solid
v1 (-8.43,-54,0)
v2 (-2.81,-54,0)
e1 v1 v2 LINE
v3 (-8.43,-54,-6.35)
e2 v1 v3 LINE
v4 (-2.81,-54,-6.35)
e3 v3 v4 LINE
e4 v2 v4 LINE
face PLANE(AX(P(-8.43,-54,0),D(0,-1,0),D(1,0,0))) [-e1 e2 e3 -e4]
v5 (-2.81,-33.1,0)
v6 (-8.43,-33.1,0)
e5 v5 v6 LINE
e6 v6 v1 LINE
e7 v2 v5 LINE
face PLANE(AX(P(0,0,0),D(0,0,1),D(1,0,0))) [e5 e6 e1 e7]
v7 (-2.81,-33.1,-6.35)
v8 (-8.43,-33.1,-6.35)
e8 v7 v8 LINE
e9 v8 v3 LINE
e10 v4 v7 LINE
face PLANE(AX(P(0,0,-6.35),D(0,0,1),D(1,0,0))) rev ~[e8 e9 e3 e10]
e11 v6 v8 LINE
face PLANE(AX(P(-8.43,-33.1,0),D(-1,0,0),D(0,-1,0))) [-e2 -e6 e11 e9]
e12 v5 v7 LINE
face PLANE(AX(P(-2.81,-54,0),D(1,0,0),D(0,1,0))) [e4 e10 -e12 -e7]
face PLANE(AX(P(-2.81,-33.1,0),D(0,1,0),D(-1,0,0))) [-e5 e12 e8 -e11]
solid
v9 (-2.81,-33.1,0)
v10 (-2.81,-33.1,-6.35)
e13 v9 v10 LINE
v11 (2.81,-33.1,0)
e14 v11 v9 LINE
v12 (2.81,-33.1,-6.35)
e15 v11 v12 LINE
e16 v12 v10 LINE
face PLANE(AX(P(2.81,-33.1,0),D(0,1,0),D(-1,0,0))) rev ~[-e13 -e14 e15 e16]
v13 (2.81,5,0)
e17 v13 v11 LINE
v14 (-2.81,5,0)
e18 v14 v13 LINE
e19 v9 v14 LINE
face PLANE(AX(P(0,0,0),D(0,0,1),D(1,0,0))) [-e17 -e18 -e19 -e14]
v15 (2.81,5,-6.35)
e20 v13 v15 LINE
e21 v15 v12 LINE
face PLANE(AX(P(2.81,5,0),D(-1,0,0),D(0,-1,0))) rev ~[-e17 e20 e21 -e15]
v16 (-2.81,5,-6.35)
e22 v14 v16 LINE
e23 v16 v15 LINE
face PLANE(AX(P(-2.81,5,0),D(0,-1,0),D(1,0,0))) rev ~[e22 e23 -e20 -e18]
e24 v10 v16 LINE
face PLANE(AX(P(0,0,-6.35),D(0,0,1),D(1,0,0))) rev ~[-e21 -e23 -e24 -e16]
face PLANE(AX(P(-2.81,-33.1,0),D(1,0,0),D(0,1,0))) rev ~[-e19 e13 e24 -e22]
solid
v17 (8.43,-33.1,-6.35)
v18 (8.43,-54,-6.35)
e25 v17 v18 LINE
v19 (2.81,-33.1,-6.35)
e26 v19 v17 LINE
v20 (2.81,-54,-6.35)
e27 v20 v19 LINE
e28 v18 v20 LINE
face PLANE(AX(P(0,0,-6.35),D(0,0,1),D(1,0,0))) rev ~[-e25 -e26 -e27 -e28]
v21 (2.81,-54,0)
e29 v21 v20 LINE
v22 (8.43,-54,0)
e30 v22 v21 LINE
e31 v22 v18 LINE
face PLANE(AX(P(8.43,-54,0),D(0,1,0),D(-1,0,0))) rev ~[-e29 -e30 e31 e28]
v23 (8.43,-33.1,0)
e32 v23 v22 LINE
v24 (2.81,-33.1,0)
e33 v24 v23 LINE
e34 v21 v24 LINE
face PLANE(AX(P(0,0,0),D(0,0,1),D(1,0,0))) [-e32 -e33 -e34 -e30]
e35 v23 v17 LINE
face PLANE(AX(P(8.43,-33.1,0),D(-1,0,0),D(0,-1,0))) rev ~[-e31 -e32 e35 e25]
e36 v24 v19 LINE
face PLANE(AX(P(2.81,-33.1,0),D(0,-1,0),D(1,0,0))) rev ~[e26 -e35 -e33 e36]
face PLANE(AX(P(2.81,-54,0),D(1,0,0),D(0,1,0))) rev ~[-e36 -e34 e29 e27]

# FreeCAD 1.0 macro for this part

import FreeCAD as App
import Part
import Sketcher
from FreeCAD import Vector
Q = App.Units.Quantity


def add_polygon(sketch, points):
    """Adds a closed chain of lines whose ends are joined by coincident constraints."""
    first, n = sketch.GeometryCount, len(points)
    for a, b in zip(points, points[1:] + points[:1]):
        sketch.addGeometry(Part.LineSegment(App.Vector(*a, 0), App.Vector(*b, 0)), False)
    for i in range(n):
        sketch.addConstraint(Sketcher.Constraint("Coincident", first + i, 2, first + (i + 1) % n, 1))

doc = App.newDocument("Part")
body = doc.addObject("PartDesign::Body", "Body")
body.AllowCompound = True

# Sketch on XY plane
sketch1 = body.newObject("Sketcher::SketchObject", "Sketch")
sketch1.AttachmentSupport = (doc.getObject("XY_Plane"), [""])
sketch1.MapMode = "FlatFace"
add_polygon(sketch1, [(8.43, -33.1), (2.81, -33.1), (2.81, -54), (8.43, -54)])  # lines 0-3
add_polygon(sketch1, [(-2.81, -54), (-2.81, -33.1), (-8.43, -33.1), (-8.43, -54)])  # lines 4-7
add_polygon(sketch1, [(2.81, 5), (-2.81, 5), (-2.81, -33.1), (2.81, -33.1)])  # lines 8-11
sketch1.addConstraint([
    Sketcher.Constraint("Horizontal", 0),
    Sketcher.Constraint("Vertical", 1),
    Sketcher.Constraint("Horizontal", 2),
    Sketcher.Constraint("Vertical", 3),
    Sketcher.Constraint("Vertical", 4),
    Sketcher.Constraint("Horizontal", 5),
    Sketcher.Constraint("Vertical", 6),
    Sketcher.Constraint("Horizontal", 7),
    Sketcher.Constraint("Horizontal", 8),
    Sketcher.Constraint("Vertical", 9),
    Sketcher.Constraint("Horizontal", 10),
    Sketcher.Constraint("Vertical", 11),
    Sketcher.Constraint("Coincident", 9, 2, 4, 2),
    Sketcher.Constraint("Coincident", 10, 2, 0, 2),
    Sketcher.Constraint("Symmetric", 2, 2, 6, 2, -2),
    Sketcher.Constraint("Equal", 2, 5),
    Sketcher.Constraint("Equal", 7, 8),
    Sketcher.Constraint("DistanceY", 9, 2, 9, 1, Q("1.5 in")),
    Sketcher.Constraint("DistanceX", 0, 2, 0, 1, Q("5.62 mm")),
    Sketcher.Constraint("DistanceY", 1, 2, 1, 1, Q("20.9 mm")),
    Sketcher.Constraint("DistanceY", 0, 2, -1, 1, Q("33.1 mm")),
])
pad1 = body.newObject("PartDesign::Pad", "Pad")
pad1.Profile = sketch1
pad1.Length = Q("0.25 in")
pad1.Reversed = True

doc.recompute()
